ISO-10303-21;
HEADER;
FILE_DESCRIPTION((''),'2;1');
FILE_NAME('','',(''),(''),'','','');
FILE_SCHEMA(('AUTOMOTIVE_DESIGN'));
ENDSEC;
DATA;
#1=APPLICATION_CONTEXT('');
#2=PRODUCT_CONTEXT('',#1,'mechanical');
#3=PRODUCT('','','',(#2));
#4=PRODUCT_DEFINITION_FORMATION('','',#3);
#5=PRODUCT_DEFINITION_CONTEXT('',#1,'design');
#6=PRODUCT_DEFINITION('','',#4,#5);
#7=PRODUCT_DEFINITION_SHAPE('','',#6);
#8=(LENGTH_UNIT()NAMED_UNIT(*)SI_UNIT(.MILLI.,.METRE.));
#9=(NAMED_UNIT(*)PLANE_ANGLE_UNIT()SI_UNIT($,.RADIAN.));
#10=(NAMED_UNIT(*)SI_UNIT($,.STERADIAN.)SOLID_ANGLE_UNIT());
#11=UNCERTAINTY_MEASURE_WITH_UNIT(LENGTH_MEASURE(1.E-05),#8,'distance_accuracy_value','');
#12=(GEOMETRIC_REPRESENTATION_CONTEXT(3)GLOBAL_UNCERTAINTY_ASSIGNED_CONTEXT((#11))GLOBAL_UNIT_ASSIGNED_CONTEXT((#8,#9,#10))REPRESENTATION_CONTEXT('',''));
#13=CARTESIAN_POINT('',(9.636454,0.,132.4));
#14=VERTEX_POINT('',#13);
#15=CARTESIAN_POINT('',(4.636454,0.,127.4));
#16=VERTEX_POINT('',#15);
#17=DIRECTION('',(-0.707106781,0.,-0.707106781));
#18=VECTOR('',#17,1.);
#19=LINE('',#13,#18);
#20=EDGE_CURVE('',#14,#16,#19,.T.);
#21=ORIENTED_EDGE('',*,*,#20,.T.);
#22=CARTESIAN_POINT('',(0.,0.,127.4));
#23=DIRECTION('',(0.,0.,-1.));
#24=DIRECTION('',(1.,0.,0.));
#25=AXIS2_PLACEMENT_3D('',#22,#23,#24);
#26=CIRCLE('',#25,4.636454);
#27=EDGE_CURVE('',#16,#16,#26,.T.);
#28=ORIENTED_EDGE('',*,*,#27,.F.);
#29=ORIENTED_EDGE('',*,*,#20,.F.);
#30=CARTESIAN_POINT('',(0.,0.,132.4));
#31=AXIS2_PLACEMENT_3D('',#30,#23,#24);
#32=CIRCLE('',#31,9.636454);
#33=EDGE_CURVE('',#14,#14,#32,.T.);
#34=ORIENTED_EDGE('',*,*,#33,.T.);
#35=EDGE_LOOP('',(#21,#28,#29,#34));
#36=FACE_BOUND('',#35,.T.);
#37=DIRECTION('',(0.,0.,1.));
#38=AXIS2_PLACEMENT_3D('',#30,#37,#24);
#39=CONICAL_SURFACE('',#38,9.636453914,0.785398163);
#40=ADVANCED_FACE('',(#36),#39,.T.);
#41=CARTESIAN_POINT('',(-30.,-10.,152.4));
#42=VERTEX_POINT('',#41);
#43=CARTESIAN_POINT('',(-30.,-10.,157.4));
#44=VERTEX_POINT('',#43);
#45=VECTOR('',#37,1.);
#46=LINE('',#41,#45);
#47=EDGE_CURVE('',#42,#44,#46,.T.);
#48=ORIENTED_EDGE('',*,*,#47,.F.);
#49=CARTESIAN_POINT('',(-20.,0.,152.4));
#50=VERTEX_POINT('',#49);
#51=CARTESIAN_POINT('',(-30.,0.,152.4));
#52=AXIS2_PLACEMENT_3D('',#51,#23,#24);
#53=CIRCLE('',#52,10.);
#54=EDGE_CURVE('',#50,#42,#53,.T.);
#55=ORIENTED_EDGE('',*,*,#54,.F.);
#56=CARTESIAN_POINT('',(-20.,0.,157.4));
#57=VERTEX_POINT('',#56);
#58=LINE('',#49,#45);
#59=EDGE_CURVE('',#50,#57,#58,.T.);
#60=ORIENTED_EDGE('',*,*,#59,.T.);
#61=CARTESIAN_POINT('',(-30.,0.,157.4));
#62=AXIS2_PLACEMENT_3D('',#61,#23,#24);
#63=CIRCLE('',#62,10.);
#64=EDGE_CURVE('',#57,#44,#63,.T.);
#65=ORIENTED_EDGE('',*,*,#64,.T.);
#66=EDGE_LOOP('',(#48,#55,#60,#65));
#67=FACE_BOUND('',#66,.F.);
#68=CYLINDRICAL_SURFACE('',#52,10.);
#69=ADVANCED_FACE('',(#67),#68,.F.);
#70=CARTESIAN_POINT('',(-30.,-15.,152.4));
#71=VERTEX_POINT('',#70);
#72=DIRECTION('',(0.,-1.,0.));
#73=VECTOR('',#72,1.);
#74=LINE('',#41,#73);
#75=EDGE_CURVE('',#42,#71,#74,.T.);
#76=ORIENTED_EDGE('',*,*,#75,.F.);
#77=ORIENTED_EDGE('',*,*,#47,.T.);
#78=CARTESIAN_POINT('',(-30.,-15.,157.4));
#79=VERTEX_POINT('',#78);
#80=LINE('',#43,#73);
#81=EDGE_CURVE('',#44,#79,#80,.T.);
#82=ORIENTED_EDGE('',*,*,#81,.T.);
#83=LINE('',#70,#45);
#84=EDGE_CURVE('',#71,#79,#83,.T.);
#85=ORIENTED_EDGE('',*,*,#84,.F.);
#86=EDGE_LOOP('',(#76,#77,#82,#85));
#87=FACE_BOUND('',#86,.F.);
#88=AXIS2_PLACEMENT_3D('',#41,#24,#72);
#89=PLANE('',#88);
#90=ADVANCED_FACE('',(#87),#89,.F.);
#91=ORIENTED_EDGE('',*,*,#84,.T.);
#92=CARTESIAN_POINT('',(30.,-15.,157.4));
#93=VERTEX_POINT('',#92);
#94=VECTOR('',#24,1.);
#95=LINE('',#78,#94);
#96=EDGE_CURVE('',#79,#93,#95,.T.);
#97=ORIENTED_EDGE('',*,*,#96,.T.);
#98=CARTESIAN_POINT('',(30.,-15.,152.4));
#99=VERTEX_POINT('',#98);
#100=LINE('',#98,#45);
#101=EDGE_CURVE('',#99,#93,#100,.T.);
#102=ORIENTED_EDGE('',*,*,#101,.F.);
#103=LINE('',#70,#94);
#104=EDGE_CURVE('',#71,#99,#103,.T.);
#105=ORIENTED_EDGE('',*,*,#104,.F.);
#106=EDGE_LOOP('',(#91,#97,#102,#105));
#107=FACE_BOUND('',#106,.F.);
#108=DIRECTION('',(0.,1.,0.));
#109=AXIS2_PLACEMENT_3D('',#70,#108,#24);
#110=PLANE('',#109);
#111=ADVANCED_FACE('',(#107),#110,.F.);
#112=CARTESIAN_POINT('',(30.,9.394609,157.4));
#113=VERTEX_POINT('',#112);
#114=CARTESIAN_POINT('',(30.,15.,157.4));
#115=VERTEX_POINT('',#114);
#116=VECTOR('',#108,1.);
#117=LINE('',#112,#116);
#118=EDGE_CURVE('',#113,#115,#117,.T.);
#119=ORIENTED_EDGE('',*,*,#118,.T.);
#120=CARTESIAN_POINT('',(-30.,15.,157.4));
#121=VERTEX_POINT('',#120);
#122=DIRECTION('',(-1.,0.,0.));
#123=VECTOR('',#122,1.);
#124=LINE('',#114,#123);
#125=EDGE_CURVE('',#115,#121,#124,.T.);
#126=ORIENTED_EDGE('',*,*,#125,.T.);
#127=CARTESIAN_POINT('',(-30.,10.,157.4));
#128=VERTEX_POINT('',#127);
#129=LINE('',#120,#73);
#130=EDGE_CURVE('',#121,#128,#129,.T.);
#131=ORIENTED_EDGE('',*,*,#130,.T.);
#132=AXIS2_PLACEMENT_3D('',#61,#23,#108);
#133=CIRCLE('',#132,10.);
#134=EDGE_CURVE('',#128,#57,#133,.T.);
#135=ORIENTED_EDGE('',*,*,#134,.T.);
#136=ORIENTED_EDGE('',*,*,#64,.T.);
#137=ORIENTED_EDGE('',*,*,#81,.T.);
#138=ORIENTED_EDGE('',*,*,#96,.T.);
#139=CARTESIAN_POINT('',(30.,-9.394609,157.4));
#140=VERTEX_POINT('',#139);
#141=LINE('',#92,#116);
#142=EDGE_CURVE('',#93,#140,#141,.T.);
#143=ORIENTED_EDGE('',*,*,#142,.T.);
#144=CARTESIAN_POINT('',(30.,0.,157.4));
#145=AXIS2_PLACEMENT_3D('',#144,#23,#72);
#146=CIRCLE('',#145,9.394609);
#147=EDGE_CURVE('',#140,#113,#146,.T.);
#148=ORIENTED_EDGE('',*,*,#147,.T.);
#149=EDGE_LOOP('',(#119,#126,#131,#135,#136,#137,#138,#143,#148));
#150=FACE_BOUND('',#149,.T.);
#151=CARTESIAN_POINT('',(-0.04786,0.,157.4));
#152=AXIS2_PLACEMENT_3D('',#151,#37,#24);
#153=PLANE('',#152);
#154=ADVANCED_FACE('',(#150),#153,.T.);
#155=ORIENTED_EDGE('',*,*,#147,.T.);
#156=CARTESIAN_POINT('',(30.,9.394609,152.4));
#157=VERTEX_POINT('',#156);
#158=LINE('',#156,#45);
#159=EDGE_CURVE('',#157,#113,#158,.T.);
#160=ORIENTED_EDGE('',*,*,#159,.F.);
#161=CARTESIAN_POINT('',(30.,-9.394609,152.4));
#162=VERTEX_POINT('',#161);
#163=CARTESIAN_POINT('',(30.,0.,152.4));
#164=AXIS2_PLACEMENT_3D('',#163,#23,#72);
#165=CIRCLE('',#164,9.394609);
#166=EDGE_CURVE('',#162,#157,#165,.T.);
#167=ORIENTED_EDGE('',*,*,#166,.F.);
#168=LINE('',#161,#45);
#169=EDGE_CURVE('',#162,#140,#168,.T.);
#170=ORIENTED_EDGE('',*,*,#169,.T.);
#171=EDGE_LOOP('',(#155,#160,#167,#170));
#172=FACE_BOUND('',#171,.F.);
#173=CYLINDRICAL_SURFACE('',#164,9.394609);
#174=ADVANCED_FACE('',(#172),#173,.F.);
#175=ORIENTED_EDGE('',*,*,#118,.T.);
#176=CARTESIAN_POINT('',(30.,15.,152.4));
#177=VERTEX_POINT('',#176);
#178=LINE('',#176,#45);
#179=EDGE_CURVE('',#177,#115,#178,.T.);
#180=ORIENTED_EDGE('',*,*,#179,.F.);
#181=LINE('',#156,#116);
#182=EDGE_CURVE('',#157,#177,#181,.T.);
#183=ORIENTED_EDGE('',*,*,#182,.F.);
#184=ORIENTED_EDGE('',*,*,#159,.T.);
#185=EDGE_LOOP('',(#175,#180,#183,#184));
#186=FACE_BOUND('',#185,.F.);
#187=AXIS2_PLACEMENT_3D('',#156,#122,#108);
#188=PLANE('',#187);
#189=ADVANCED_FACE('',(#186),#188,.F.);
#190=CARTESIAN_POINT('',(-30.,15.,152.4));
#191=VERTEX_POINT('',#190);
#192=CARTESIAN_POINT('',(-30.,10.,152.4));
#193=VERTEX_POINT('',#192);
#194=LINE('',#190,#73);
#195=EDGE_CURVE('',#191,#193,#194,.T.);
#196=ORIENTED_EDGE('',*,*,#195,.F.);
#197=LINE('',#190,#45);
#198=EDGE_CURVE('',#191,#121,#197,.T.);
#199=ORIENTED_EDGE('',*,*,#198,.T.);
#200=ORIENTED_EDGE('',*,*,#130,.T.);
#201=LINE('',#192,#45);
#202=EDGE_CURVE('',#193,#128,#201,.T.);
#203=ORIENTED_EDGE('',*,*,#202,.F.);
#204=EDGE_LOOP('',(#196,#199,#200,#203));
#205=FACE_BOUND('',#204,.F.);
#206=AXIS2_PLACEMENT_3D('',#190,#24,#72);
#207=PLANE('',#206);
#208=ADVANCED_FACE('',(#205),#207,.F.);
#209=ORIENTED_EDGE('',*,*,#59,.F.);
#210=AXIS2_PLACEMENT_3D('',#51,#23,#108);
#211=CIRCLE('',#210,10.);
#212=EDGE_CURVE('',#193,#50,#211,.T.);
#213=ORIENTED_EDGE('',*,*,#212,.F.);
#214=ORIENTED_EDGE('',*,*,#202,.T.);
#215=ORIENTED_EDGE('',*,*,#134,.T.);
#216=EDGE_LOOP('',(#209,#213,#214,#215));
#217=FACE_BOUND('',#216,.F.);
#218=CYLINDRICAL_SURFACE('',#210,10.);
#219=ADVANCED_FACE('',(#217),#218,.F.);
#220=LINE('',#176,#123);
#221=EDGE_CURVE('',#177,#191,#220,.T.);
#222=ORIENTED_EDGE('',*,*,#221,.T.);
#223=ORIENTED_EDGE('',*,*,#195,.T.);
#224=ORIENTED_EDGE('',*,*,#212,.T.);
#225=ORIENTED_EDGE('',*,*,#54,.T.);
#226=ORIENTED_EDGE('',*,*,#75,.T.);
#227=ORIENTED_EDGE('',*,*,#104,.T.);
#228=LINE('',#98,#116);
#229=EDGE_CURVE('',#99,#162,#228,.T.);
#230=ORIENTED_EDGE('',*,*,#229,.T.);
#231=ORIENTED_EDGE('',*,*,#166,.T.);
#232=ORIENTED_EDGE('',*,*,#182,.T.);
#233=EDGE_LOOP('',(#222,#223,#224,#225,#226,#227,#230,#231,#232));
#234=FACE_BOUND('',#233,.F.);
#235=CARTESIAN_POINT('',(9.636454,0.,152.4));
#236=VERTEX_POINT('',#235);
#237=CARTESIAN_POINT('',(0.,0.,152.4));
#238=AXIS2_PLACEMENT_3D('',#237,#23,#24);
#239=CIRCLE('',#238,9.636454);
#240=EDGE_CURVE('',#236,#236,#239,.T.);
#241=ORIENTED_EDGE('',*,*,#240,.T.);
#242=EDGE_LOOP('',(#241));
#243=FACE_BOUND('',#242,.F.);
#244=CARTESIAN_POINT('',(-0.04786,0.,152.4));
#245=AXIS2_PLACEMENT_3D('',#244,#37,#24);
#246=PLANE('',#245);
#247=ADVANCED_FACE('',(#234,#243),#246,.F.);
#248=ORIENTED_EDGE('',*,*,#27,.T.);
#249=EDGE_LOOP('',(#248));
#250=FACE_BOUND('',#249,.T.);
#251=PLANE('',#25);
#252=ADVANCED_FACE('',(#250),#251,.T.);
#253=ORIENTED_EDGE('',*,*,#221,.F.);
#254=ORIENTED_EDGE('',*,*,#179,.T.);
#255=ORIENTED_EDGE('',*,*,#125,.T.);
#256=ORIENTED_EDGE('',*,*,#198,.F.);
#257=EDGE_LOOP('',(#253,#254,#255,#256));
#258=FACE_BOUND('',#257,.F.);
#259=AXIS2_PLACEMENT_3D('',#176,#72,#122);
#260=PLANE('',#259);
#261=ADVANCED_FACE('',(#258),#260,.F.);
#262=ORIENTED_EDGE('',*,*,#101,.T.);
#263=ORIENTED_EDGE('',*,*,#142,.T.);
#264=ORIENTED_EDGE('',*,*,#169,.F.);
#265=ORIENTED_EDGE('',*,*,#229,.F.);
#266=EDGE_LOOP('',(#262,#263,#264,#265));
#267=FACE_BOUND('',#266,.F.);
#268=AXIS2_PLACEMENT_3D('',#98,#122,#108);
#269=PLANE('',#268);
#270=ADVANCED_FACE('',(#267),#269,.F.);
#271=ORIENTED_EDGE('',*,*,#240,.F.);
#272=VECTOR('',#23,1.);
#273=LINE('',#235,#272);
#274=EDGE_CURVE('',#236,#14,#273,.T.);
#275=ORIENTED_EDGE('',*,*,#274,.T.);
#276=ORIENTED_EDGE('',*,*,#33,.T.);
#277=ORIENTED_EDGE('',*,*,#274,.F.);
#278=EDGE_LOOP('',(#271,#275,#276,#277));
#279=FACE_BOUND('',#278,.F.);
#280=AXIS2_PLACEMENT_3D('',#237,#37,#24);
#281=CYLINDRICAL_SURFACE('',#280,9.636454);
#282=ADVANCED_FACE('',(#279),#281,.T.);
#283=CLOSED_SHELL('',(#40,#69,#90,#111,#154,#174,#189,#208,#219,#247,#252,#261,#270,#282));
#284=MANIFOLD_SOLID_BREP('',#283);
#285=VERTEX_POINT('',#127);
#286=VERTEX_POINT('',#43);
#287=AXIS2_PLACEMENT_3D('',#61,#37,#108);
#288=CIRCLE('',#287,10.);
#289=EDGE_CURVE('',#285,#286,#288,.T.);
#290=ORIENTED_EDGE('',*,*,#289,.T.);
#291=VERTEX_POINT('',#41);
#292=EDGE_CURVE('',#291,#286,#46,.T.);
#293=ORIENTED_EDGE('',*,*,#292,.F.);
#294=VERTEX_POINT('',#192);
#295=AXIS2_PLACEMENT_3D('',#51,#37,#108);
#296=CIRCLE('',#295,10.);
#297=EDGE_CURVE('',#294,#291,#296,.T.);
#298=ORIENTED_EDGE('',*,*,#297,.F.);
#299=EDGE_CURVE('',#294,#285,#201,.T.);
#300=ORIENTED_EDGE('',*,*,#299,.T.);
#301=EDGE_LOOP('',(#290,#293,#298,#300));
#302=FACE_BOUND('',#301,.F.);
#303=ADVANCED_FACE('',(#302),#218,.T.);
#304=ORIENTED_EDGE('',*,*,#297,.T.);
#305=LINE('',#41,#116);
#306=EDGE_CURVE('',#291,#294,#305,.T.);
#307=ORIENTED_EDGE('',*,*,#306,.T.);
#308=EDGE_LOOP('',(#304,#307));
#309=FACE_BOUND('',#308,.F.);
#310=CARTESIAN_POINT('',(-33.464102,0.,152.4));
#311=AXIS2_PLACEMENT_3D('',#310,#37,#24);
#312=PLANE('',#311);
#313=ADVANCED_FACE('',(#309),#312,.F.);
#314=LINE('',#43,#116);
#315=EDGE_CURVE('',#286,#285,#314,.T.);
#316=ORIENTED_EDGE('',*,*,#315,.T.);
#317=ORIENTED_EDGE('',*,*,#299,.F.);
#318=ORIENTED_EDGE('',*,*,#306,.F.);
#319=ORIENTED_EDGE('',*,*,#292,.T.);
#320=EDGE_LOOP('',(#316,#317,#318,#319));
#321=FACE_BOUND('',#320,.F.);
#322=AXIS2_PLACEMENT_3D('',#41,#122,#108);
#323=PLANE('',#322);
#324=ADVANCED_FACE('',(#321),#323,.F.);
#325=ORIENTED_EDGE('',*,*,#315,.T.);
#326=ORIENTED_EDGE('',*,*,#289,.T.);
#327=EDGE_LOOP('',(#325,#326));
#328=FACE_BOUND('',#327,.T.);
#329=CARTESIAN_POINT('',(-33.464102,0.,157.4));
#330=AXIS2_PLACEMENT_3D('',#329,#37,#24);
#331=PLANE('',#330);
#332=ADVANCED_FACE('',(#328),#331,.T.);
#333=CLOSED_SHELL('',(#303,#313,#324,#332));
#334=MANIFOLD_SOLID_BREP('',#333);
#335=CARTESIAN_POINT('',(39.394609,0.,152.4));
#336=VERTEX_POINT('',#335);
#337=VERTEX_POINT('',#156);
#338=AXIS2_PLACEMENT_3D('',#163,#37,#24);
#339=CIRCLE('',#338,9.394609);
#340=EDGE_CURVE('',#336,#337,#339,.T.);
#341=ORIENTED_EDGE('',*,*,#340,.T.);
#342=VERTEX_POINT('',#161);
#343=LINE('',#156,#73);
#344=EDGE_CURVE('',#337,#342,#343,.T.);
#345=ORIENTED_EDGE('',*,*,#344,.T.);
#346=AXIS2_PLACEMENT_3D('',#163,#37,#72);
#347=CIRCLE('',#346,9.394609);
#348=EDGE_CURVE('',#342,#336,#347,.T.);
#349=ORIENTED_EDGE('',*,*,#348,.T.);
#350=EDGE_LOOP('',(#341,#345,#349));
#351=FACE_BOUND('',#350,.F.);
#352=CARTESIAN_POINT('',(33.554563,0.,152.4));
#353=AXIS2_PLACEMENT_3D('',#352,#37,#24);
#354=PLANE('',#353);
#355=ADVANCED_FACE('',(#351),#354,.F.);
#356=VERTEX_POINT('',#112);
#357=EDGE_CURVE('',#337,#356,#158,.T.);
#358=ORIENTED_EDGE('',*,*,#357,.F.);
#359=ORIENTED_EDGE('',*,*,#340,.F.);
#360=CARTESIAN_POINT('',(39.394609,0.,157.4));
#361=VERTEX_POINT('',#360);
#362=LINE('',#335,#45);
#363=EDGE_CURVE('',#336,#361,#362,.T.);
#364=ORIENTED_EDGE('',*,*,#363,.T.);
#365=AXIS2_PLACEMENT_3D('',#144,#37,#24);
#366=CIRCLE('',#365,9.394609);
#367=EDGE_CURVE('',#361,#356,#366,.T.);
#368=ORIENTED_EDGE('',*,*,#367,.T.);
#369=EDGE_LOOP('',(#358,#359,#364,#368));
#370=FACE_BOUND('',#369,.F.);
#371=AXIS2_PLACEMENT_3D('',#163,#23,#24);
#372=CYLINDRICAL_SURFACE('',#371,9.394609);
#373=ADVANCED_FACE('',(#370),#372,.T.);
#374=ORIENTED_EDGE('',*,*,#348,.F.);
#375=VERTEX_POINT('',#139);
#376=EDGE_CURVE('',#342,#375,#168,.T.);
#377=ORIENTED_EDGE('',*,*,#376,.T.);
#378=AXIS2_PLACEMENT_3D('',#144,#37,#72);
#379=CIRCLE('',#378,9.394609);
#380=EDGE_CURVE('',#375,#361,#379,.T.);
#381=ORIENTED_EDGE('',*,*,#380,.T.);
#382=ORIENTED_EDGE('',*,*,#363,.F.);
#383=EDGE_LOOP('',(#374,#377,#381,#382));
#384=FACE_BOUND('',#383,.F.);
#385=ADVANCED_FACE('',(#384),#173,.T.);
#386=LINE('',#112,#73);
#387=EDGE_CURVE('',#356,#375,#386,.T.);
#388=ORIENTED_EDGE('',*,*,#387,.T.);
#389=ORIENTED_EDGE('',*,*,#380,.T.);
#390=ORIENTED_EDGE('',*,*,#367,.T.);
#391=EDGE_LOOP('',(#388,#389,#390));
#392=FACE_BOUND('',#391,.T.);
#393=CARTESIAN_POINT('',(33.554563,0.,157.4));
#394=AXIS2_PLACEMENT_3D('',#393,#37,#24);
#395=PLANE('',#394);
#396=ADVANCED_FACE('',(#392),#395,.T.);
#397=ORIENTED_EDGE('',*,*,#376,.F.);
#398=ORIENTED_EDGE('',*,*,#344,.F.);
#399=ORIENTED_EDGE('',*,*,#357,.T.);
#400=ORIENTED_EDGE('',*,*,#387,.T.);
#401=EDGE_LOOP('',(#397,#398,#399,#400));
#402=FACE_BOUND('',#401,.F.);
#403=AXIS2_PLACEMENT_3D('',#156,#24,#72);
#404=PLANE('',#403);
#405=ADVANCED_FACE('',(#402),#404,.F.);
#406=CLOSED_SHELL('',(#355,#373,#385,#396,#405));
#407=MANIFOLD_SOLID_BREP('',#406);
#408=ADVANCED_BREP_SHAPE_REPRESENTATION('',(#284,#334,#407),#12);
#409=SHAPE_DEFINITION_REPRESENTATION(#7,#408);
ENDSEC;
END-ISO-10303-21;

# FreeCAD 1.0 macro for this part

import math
import FreeCAD as App
import Part
import Sketcher
from FreeCAD import Vector
Q = App.Units.Quantity


def edges_at(feature, points):
    """Names of the edges that pass closest to the given points."""
    edges = feature.Shape.Edges
    near = lambda p: min(range(len(edges)), key=lambda i: edges[i].distToShape(Part.Vertex(*p))[0])
    return sorted({f"Edge{near(p) + 1}" for p in points})

doc = App.newDocument("Part")
params = doc.addObject("Spreadsheet::Sheet", "Params")
for row, (alias, value) in enumerate([
    ("sketch1_radius", "10 mm"),
    ("sketch1_width", "60 mm"),
    ("sketch1_height", "5 mm"),
    ("pad1_length", "5 mm"),
    ("pad2_length", "25 mm"),
    ("chamfer_size", "5 mm"),
    ("sketch3_radius", "10 mm"),
    ("pad3_length", "5 mm"),
    ("pad4_length", "5 mm"),
], start=1):
    params.set(f"A{row}", alias)
    params.set(f"B{row}", "=" + value)
    params.setAlias(f"B{row}", alias)

body = doc.addObject("PartDesign::Body", "Body")

# Sketch on XY plane
sketch1 = body.newObject("Sketcher::SketchObject", "Sketch")
sketch1.AttachmentSupport = (doc.getObject("XY_Plane"), [""])
sketch1.MapMode = "FlatFace"
sketch1.AttachmentOffset = App.Placement(Vector(0, 0, 152.4), App.Rotation())
sketch1.addGeometry([
    Part.LineSegment(Vector(30, 15, 0), Vector(-30, 15, 0)),  # 0
    Part.LineSegment(Vector(-30, 15, 0), Vector(-30, 10, 0)),  # 1
    Part.ArcOfCircle(Part.Circle(Vector(-30, 0, 0), Vector(0, 0, 1), 10), math.radians(0), math.radians(90)),  # 2
    Part.ArcOfCircle(Part.Circle(Vector(-30, 0, 0), Vector(0, 0, 1), 10), math.radians(-90), math.radians(0)),  # 3
    Part.LineSegment(Vector(-30, -10, 0), Vector(-30, -15, 0)),  # 4
    Part.LineSegment(Vector(-30, -15, 0), Vector(30, -15, 0)),  # 5
    Part.LineSegment(Vector(30, -15, 0), Vector(30, -9, 0)),  # 6
    Part.ArcOfCircle(Part.Circle(Vector(30, 0, 0), Vector(0, 0, 1), 9), math.radians(90), math.radians(270)),  # 7
    Part.LineSegment(Vector(30, 9, 0), Vector(30, 15, 0)),  # 8
], False)
sketch1.addConstraint([
    Sketcher.Constraint("Coincident", 0, 2, 1, 1),
    Sketcher.Constraint("Coincident", 1, 2, 2, 2),
    Sketcher.Constraint("Tangent", 2, 1, 3, 2),
    Sketcher.Constraint("Coincident", 3, 1, 4, 1),
    Sketcher.Constraint("Coincident", 4, 2, 5, 1),
    Sketcher.Constraint("Coincident", 5, 2, 6, 1),
    Sketcher.Constraint("Coincident", 6, 2, 7, 2),
    Sketcher.Constraint("Coincident", 7, 1, 8, 1),
    Sketcher.Constraint("Coincident", 8, 2, 0, 1),
    Sketcher.Constraint("Horizontal", 0),
    Sketcher.Constraint("Vertical", 1),
    Sketcher.Constraint("Vertical", 4),
    Sketcher.Constraint("Horizontal", 5),
    Sketcher.Constraint("Vertical", 6),
    Sketcher.Constraint("Vertical", 8),
    Sketcher.Constraint("Equal", 2, 3),
    Sketcher.Constraint("Symmetric", 2, 3, 7, 3, -1, 1),
    Sketcher.Constraint("Symmetric", 0, 2, 5, 2, -1, 1),
    Sketcher.Constraint("Symmetric", 1, 2, 3, 1, -1),
    Sketcher.Constraint("PointOnObject", 2, 1, -1),
    Sketcher.Constraint("Vertical", 3, 3, 0, 2),
    Sketcher.Constraint("Vertical", 6, 2, 7, 1),
    Sketcher.Constraint("Radius", 2, Q("10 mm")),
    Sketcher.Constraint("DistanceX", 0, 2, 0, 1, Q("60 mm")),
    Sketcher.Constraint("DistanceY", 1, 2, 1, 1, Q("5 mm")),
    Sketcher.Constraint("Radius", 7, Q("9.394609 mm")),
])
sketch1.setExpression("Constraints[22]", "Params.sketch1_radius")
sketch1.setExpression("Constraints[23]", "Params.sketch1_width")
sketch1.setExpression("Constraints[24]", "Params.sketch1_height")
pad1 = body.newObject("PartDesign::Pad", "Pad")
pad1.Profile = sketch1
pad1.setExpression("Length", "Params.pad1_length")

# Sketch on XY plane
sketch2 = body.newObject("Sketcher::SketchObject", "Sketch001")
sketch2.AttachmentSupport = (doc.getObject("XY_Plane"), [""])
sketch2.MapMode = "FlatFace"
sketch2.AttachmentOffset = App.Placement(Vector(0, 0, 152.4), App.Rotation())
sketch2.addGeometry(Part.Circle(Vector(0, 0, 0), Vector(0, 0, 1), 10), False)
sketch2.addConstraint([
    Sketcher.Constraint("Coincident", 0, 3, -1, 1),
    Sketcher.Constraint("Diameter", 0, Q("19.272908 mm")),
])
pad2 = body.newObject("PartDesign::Pad", "Pad001")
pad2.Profile = sketch2
pad2.setExpression("Length", "Params.pad2_length")
pad2.Reversed = True
doc.recompute()

chamfer = body.newObject("PartDesign::Chamfer", "Chamfer")
chamfer.Base = (pad2, edges_at(pad2, [(-9.636, 0, 127.4)]))
chamfer.setExpression("Size", "Params.chamfer_size")
body2 = doc.addObject("PartDesign::Body", "Body001")

# Sketch on XY plane
sketch3 = body2.newObject("Sketcher::SketchObject", "Sketch002")
sketch3.AttachmentSupport = (doc.getObject("XY_Plane001"), [""])
sketch3.MapMode = "FlatFace"
sketch3.AttachmentOffset = App.Placement(Vector(0, 0, 152.4), App.Rotation())
sketch3.addGeometry([
    Part.LineSegment(Vector(-30, -10, 0), Vector(-30, 10, 0)),
    Part.ArcOfCircle(Part.Circle(Vector(-30, 0, 0), Vector(0, 0, 1), 10), math.radians(90), math.radians(270)),
], False)
sketch3.addConstraint([
    Sketcher.Constraint("Coincident", 0, 1, 1, 2),
    Sketcher.Constraint("Coincident", 1, 1, 0, 2),
    Sketcher.Constraint("Vertical", 0),
    Sketcher.Constraint("PointOnObject", 1, 3, -1),
    Sketcher.Constraint("Vertical", 1, 3, 0, 1),
    Sketcher.Constraint("Radius", 1, Q("10 mm")),
    Sketcher.Constraint("DistanceX", 1, 3, -1, 1, Q("30 mm")),
])
sketch3.setExpression("Constraints[5]", "Params.sketch3_radius")
pad3 = body2.newObject("PartDesign::Pad", "Pad002")
pad3.Profile = sketch3
pad3.setExpression("Length", "Params.pad3_length")
body3 = doc.addObject("PartDesign::Body", "Body002")

# Sketch on XY plane
sketch4 = body3.newObject("Sketcher::SketchObject", "Sketch003")
sketch4.AttachmentSupport = (doc.getObject("XY_Plane002"), [""])
sketch4.MapMode = "FlatFace"
sketch4.AttachmentOffset = App.Placement(Vector(0, 0, 152.4), App.Rotation())
sketch4.addGeometry([
    Part.ArcOfCircle(Part.Circle(Vector(30, 0, 0), Vector(0, 0, 1), 9), math.radians(0), math.radians(90)),
    Part.LineSegment(Vector(30, 9, 0), Vector(30, -9, 0)),
    Part.ArcOfCircle(Part.Circle(Vector(30, 0, 0), Vector(0, 0, 1), 9), math.radians(-90), math.radians(0)),
], False)
sketch4.addConstraint([
    Sketcher.Constraint("Coincident", 0, 2, 1, 1),
    Sketcher.Constraint("Coincident", 1, 2, 2, 1),
    Sketcher.Constraint("Tangent", 2, 2, 0, 1),
    Sketcher.Constraint("Vertical", 1),
    Sketcher.Constraint("Equal", 0, 2),
    Sketcher.Constraint("PointOnObject", 0, 3, -1),
    Sketcher.Constraint("PointOnObject", 2, 2, -1),
    Sketcher.Constraint("Vertical", 2, 3, 0, 2),
    Sketcher.Constraint("DistanceX", -1, 1, 0, 3, Q("30 mm")),
    Sketcher.Constraint("Radius", 0, Q("9.394609 mm")),
])
pad4 = body3.newObject("PartDesign::Pad", "Pad003")
pad4.Profile = sketch4
pad4.setExpression("Length", "Params.pad4_length")

doc.recompute()
